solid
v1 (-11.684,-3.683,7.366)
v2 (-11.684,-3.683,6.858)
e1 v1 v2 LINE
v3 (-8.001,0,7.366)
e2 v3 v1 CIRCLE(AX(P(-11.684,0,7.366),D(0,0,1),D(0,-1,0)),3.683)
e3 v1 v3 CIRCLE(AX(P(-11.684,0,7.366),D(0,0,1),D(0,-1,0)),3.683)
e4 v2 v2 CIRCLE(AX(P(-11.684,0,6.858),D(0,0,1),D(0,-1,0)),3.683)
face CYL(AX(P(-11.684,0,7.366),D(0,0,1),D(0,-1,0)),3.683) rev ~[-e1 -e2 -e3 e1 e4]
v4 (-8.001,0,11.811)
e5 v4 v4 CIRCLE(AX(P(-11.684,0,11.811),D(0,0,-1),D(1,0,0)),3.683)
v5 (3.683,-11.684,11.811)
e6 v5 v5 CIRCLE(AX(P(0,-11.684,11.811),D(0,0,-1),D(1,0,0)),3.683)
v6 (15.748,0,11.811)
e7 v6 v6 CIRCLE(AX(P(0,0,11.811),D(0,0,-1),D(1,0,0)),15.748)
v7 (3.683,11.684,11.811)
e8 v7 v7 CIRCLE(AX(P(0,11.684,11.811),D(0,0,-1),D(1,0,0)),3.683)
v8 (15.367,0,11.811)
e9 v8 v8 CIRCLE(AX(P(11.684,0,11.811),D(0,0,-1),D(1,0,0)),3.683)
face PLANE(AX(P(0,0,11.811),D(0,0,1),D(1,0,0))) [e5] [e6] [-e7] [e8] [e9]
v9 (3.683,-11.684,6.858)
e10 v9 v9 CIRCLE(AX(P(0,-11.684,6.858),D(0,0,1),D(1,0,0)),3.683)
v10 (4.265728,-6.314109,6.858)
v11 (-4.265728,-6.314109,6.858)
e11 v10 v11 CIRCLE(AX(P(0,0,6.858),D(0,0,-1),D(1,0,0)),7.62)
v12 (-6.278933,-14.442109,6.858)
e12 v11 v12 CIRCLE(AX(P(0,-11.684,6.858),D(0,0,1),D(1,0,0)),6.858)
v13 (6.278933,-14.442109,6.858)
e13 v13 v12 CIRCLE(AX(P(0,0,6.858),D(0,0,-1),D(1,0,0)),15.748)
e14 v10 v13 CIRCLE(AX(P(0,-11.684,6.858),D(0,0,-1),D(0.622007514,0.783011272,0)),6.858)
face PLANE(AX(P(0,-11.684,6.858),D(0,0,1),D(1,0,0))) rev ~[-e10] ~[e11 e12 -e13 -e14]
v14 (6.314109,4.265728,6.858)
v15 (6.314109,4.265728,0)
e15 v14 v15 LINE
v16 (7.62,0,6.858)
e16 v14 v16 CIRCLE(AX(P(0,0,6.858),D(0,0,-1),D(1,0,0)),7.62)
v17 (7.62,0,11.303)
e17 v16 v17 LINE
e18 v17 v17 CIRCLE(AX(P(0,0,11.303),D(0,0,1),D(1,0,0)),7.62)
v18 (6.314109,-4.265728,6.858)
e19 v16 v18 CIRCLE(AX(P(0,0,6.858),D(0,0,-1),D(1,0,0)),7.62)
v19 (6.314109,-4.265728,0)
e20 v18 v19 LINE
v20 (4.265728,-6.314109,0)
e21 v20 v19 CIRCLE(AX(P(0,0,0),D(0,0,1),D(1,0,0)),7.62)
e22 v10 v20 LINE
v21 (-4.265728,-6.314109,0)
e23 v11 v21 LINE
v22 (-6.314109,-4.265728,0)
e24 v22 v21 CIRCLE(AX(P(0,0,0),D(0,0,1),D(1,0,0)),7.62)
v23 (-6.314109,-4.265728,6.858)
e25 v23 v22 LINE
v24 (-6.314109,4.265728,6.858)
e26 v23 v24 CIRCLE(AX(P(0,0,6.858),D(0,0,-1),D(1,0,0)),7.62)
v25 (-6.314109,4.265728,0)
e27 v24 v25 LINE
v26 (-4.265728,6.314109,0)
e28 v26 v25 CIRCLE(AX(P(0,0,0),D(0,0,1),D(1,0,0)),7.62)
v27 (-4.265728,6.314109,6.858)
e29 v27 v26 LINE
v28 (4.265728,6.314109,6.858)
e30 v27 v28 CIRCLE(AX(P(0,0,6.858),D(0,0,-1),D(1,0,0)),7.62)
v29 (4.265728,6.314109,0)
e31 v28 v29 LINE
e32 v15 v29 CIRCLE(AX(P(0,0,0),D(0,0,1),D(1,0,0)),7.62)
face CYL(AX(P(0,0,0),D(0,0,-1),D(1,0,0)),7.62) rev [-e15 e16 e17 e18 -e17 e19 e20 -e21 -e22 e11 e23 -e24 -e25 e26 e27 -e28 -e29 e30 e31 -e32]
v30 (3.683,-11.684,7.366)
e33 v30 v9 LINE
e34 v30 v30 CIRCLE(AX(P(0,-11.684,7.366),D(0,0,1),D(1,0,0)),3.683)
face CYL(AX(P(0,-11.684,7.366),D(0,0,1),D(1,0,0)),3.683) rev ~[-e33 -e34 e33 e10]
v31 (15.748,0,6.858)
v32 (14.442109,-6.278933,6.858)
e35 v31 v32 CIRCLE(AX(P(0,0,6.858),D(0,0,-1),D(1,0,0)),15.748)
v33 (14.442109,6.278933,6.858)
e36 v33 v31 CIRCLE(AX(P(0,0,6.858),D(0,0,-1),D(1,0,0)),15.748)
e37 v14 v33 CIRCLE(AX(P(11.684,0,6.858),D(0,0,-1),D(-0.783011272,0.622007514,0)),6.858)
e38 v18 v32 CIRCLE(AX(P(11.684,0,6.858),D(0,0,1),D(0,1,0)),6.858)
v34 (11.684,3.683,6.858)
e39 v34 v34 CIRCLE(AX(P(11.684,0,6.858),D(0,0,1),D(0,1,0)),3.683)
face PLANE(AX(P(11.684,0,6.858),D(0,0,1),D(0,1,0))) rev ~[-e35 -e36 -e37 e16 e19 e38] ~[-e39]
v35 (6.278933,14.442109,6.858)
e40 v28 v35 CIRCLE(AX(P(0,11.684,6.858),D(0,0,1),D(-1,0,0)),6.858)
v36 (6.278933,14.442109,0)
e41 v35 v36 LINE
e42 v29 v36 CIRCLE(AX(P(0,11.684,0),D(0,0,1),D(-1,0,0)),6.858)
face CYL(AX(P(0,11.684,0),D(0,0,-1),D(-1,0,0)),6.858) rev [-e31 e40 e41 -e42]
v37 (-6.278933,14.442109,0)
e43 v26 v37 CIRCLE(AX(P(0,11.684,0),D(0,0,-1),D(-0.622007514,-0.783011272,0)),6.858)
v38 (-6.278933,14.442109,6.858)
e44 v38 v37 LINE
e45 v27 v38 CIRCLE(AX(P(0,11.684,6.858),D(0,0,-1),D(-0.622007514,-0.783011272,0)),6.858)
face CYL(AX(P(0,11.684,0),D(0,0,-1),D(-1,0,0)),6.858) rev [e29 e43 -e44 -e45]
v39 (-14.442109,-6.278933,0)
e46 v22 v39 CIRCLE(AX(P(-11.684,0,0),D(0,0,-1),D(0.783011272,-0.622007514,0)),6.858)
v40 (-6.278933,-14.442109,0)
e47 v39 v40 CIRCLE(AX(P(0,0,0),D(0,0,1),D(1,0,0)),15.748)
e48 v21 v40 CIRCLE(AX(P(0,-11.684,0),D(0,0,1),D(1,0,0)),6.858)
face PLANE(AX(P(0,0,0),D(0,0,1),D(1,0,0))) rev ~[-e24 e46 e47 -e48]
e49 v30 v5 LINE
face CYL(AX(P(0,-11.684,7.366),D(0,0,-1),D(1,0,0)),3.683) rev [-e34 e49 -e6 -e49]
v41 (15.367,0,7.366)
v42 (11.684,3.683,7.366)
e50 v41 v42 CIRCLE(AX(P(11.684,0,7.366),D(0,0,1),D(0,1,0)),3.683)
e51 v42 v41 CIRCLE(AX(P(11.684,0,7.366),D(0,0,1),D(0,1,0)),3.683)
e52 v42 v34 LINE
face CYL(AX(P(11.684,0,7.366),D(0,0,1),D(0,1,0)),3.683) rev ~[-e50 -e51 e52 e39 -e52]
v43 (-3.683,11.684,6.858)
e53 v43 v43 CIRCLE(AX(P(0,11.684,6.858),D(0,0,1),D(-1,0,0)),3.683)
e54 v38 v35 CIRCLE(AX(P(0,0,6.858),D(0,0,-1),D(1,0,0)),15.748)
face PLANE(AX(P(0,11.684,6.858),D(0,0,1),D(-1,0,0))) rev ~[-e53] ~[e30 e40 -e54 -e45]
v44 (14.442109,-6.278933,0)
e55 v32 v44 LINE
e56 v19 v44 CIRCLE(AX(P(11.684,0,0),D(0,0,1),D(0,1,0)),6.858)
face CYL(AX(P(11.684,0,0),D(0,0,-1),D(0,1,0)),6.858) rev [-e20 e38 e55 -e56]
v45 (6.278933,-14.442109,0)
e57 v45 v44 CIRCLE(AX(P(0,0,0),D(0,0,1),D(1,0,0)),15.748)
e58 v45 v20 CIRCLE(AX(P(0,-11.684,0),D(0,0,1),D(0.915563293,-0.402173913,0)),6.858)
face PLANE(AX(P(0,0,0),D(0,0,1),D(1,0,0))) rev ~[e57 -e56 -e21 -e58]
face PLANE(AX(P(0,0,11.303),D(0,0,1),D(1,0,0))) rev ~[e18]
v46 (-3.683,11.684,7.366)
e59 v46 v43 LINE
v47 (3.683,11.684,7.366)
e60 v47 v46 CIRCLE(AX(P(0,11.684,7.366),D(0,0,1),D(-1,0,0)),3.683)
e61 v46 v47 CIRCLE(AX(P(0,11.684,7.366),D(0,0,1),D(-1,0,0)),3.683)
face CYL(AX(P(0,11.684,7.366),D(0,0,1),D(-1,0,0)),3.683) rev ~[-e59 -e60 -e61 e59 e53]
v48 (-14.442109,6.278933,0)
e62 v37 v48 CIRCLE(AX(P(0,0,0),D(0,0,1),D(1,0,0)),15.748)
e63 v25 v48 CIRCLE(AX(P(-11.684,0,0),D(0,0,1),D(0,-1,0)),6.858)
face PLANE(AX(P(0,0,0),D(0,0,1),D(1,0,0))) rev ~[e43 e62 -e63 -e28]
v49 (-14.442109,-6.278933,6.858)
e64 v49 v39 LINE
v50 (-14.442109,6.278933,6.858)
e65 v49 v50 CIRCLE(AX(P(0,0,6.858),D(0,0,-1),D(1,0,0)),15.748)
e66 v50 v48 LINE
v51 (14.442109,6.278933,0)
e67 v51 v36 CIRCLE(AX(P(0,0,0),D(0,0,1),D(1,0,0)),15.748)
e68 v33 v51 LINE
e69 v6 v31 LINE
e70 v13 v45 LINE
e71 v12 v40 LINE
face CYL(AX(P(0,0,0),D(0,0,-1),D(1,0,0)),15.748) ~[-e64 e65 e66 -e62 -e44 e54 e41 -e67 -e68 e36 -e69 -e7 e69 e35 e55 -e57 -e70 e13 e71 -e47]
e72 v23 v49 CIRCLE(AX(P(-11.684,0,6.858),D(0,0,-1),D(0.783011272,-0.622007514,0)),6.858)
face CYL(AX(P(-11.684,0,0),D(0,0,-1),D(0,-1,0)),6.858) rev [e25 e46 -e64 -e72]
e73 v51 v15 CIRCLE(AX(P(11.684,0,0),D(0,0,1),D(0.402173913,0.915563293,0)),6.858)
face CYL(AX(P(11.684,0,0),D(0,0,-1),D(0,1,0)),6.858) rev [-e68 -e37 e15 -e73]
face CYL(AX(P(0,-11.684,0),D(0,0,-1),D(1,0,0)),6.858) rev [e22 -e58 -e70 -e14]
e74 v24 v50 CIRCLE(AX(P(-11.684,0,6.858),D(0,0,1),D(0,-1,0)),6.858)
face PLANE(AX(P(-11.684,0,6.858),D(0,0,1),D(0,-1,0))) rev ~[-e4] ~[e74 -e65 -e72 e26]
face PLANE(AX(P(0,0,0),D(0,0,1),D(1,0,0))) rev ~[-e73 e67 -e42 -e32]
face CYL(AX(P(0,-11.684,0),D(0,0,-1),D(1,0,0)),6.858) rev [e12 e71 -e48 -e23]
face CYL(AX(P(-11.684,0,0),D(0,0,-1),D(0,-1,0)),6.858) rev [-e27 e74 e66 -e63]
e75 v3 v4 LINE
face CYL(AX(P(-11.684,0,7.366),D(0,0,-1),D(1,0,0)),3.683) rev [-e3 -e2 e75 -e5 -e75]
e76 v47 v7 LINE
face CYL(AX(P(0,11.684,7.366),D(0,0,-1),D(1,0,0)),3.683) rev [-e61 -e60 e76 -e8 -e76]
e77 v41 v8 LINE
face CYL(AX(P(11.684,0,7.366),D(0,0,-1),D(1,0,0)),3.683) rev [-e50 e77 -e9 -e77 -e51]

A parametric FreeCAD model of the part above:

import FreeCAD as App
import Part
import Sketcher
Q = App.Units.Quantity

doc = App.newDocument("Part")
body = doc.addObject("PartDesign::Body", "Body")

# Sketch on XY plane
sketch1 = doc.addObject("Sketcher::SketchObject", "Sketch")
body.addObject(sketch1)
sketch1.AttachmentSupport = (doc.XY_Plane, [""])
sketch1.MapMode = "FlatFace"
sketch1.addGeometry([
    Part.Circle(App.Vector(0, 0, 0), App.Vector(0, 0, 1), 16),
    Part.Circle(App.Vector(0, 0, 0), App.Vector(0, 0, 1), 8),
], False)
sketch1.addConstraint([
    Sketcher.Constraint("Coincident", 0, 3, -1, 1),
    Sketcher.Constraint("Coincident", 1, 3, -1, 1),
    Sketcher.Constraint("Diameter", 1, Q("0.6 in")),
    Sketcher.Constraint("Diameter", 0, Q("1.24 in")),
])
pad1 = doc.addObject("PartDesign::Pad", "Pad")
body.addObject(pad1)
pad1.Profile = sketch1
pad1.Length = Q("0.29 in")

# Sketch on XY plane
sketch2 = doc.addObject("Sketcher::SketchObject", "Sketch001")
body.addObject(sketch2)
sketch2.AttachmentSupport = (doc.XY_Plane, [""])
sketch2.MapMode = "FlatFace"
sketch2.addGeometry(Part.Circle(App.Vector(0, -12, 0), App.Vector(0, 0, 1), 7), False)
sketch2.addConstraint([
    Sketcher.Constraint("PointOnObject", 0, 3, -2),
    Sketcher.Constraint("Diameter", 0, Q("0.54 in")),
    Sketcher.Constraint("DistanceY", 0, 3, -1, 1, Q("0.46 in")),
])
pocket1 = doc.addObject("PartDesign::Pocket", "Pocket")
body.addObject(pocket1)
pocket1.Profile = sketch2
pocket1.Length = Q("0.27 in")
pocket1.Reversed = True

# Sketch on XY plane
sketch3 = doc.addObject("Sketcher::SketchObject", "Sketch002")
body.addObject(sketch3)
sketch3.AttachmentSupport = (doc.XY_Plane, [""])
sketch3.MapMode = "FlatFace"
sketch3.AttachmentOffset = App.Placement(App.Vector(0, 0, 0.29 * 25.4), App.Rotation())
sketch3.addGeometry(Part.Circle(App.Vector(0, -11.7, 0), App.Vector(0, 0, 1), 3.7), False)
sketch3.addConstraint([
    Sketcher.Constraint("PointOnObject", 0, 3, -2),
    Sketcher.Constraint("Diameter", 0, Q("0.29 in")),
    Sketcher.Constraint("DistanceY", 0, 3, -1, 1, Q("0.46 in")),
])
pocket2 = doc.addObject("PartDesign::Pocket", "Pocket001")
body.addObject(pocket2)
pocket2.Profile = sketch3
pocket2.Length = 4.4355
doc.recompute()

polarpattern = doc.addObject("PartDesign::PolarPattern", "PolarPattern")
body.addObject(polarpattern)
polarpattern.Originals = [pocket2, pocket1]
polarpattern.Axis = (doc.Z_Axis, [""])
polarpattern.Angle = 360
polarpattern.Occurrences = 4
body.Tip = polarpattern

# Sketch on XY plane
sketch4 = doc.addObject("Sketcher::SketchObject", "Sketch003")
body.addObject(sketch4)
sketch4.AttachmentSupport = (doc.XY_Plane, [""])
sketch4.MapMode = "FlatFace"
sketch4.AttachmentOffset = App.Placement(App.Vector(0, 0, 0.29 * 25.4), App.Rotation())
sketch4.addGeometry([
    Part.Circle(App.Vector(0, 0, 0), App.Vector(0, 0, 1), 15.7),  # 0
    Part.Circle(App.Vector(0, -11.7, 0), App.Vector(0, 0, 1), 3.7),  # 1
    Part.Circle(App.Vector(-11.7, 0, 0), App.Vector(0, 0, 1), 3.7),  # 2
    Part.Circle(App.Vector(0, 0, 0), App.Vector(0, 0, 1), 7.6),  # 3
    Part.Circle(App.Vector(11.7, 0, 0), App.Vector(0, 0, 1), 3.7),  # 4
    Part.Circle(App.Vector(0, 11.7, 0), App.Vector(0, 0, 1), 3.7),  # 5
], False)
sketch4.addConstraint([
    Sketcher.Constraint("Coincident", 0, 3, -1, 1),
    Sketcher.Constraint("Coincident", 3, 3, -1, 1),
    Sketcher.Constraint("Equal", 1, 2),
    Sketcher.Constraint("Equal", 2, 4),
    Sketcher.Constraint("Equal", 4, 5),
    Sketcher.Constraint("Symmetric", 2, 3, 4, 3, -1, 1),
    Sketcher.Constraint("Symmetric", 1, 3, 5, 3, -1, 1),
    Sketcher.Constraint("PointOnObject", 1, 3, -2),
    Sketcher.Constraint("PointOnObject", 2, 3, -1),
    Sketcher.Constraint("Diameter", 3, Q("0.6 in")),
    Sketcher.Constraint("Diameter", 0, Q("1.24 in")),
    Sketcher.Constraint("Diameter", 1, Q("0.29 in")),
    Sketcher.Constraint("DistanceY", 1, 3, -1, 1, Q("0.46 in")),
    Sketcher.Constraint("DistanceX", 2, 3, -1, 1, Q("0.46 in")),
])
pad2 = doc.addObject("PartDesign::Pad", "Pad001")
body.addObject(pad2)
pad2.Profile = sketch4
pad2.Length = Q("0.425 in")

# Sketch on XY plane
sketch5 = doc.addObject("Sketcher::SketchObject", "Sketch004")
body.addObject(sketch5)
sketch5.AttachmentSupport = (doc.XY_Plane, [""])
sketch5.MapMode = "FlatFace"
sketch5.AttachmentOffset = App.Placement(App.Vector(0, 0, 0.715 * 25.4), App.Rotation())
sketch5.addGeometry(Part.Circle(App.Vector(0, 0, 0), App.Vector(0, 0, 1), 8), False)
sketch5.addConstraint([
    Sketcher.Constraint("Coincident", 0, 3, -1, 1),
    Sketcher.Constraint("Diameter", 0, Q("0.6 in")),
])
pad3 = doc.addObject("PartDesign::Pad", "Pad002")
body.addObject(pad3)
pad3.Profile = sketch5
pad3.Length = Q("0.02 in")
pad3.Reversed = True

# Sketch on XY plane
sketch6 = doc.addObject("Sketcher::SketchObject", "Sketch005")
body.addObject(sketch6)
sketch6.AttachmentSupport = (doc.XY_Plane, [""])
sketch6.MapMode = "FlatFace"
sketch6.AttachmentOffset = App.Placement(App.Vector(0, 0, 0.715 * 25.4), App.Rotation())
sketch6.addGeometry(Part.Circle(App.Vector(0, 0, 0), App.Vector(0, 0, 1), 19), False)
sketch6.addConstraint([
    Sketcher.Constraint("Coincident", 0, 3, -1, 1),
    Sketcher.Constraint("Diameter", 0, Q("1.4863 in")),
])
pocket3 = doc.addObject("PartDesign::Pocket", "Pocket002")
body.addObject(pocket3)
pocket3.Profile = sketch6
pocket3.Length = Q("0.25 in")

# Sketch on XY plane
sketch7 = doc.addObject("Sketcher::SketchObject", "Sketch006")
body.addObject(sketch7)
sketch7.AttachmentSupport = (doc.XY_Plane, [""])
sketch7.MapMode = "FlatFace"
sketch7.AttachmentOffset = App.Placement(App.Vector(0, 0, 0.465 * 25.4), App.Rotation())
sketch7.addGeometry(Part.Circle(App.Vector(0, 0, 0), App.Vector(0, 0, 1), 8), False)
sketch7.addConstraint([
    Sketcher.Constraint("Coincident", 0, 3, -1, 1),
    Sketcher.Constraint("Diameter", 0, Q("0.6 in")),
])
pad4 = doc.addObject("PartDesign::Pad", "Pad003")
body.addObject(pad4)
pad4.Profile = sketch7
pad4.Length = Q("0.02 in")
pad4.Reversed = True

doc.recompute()
